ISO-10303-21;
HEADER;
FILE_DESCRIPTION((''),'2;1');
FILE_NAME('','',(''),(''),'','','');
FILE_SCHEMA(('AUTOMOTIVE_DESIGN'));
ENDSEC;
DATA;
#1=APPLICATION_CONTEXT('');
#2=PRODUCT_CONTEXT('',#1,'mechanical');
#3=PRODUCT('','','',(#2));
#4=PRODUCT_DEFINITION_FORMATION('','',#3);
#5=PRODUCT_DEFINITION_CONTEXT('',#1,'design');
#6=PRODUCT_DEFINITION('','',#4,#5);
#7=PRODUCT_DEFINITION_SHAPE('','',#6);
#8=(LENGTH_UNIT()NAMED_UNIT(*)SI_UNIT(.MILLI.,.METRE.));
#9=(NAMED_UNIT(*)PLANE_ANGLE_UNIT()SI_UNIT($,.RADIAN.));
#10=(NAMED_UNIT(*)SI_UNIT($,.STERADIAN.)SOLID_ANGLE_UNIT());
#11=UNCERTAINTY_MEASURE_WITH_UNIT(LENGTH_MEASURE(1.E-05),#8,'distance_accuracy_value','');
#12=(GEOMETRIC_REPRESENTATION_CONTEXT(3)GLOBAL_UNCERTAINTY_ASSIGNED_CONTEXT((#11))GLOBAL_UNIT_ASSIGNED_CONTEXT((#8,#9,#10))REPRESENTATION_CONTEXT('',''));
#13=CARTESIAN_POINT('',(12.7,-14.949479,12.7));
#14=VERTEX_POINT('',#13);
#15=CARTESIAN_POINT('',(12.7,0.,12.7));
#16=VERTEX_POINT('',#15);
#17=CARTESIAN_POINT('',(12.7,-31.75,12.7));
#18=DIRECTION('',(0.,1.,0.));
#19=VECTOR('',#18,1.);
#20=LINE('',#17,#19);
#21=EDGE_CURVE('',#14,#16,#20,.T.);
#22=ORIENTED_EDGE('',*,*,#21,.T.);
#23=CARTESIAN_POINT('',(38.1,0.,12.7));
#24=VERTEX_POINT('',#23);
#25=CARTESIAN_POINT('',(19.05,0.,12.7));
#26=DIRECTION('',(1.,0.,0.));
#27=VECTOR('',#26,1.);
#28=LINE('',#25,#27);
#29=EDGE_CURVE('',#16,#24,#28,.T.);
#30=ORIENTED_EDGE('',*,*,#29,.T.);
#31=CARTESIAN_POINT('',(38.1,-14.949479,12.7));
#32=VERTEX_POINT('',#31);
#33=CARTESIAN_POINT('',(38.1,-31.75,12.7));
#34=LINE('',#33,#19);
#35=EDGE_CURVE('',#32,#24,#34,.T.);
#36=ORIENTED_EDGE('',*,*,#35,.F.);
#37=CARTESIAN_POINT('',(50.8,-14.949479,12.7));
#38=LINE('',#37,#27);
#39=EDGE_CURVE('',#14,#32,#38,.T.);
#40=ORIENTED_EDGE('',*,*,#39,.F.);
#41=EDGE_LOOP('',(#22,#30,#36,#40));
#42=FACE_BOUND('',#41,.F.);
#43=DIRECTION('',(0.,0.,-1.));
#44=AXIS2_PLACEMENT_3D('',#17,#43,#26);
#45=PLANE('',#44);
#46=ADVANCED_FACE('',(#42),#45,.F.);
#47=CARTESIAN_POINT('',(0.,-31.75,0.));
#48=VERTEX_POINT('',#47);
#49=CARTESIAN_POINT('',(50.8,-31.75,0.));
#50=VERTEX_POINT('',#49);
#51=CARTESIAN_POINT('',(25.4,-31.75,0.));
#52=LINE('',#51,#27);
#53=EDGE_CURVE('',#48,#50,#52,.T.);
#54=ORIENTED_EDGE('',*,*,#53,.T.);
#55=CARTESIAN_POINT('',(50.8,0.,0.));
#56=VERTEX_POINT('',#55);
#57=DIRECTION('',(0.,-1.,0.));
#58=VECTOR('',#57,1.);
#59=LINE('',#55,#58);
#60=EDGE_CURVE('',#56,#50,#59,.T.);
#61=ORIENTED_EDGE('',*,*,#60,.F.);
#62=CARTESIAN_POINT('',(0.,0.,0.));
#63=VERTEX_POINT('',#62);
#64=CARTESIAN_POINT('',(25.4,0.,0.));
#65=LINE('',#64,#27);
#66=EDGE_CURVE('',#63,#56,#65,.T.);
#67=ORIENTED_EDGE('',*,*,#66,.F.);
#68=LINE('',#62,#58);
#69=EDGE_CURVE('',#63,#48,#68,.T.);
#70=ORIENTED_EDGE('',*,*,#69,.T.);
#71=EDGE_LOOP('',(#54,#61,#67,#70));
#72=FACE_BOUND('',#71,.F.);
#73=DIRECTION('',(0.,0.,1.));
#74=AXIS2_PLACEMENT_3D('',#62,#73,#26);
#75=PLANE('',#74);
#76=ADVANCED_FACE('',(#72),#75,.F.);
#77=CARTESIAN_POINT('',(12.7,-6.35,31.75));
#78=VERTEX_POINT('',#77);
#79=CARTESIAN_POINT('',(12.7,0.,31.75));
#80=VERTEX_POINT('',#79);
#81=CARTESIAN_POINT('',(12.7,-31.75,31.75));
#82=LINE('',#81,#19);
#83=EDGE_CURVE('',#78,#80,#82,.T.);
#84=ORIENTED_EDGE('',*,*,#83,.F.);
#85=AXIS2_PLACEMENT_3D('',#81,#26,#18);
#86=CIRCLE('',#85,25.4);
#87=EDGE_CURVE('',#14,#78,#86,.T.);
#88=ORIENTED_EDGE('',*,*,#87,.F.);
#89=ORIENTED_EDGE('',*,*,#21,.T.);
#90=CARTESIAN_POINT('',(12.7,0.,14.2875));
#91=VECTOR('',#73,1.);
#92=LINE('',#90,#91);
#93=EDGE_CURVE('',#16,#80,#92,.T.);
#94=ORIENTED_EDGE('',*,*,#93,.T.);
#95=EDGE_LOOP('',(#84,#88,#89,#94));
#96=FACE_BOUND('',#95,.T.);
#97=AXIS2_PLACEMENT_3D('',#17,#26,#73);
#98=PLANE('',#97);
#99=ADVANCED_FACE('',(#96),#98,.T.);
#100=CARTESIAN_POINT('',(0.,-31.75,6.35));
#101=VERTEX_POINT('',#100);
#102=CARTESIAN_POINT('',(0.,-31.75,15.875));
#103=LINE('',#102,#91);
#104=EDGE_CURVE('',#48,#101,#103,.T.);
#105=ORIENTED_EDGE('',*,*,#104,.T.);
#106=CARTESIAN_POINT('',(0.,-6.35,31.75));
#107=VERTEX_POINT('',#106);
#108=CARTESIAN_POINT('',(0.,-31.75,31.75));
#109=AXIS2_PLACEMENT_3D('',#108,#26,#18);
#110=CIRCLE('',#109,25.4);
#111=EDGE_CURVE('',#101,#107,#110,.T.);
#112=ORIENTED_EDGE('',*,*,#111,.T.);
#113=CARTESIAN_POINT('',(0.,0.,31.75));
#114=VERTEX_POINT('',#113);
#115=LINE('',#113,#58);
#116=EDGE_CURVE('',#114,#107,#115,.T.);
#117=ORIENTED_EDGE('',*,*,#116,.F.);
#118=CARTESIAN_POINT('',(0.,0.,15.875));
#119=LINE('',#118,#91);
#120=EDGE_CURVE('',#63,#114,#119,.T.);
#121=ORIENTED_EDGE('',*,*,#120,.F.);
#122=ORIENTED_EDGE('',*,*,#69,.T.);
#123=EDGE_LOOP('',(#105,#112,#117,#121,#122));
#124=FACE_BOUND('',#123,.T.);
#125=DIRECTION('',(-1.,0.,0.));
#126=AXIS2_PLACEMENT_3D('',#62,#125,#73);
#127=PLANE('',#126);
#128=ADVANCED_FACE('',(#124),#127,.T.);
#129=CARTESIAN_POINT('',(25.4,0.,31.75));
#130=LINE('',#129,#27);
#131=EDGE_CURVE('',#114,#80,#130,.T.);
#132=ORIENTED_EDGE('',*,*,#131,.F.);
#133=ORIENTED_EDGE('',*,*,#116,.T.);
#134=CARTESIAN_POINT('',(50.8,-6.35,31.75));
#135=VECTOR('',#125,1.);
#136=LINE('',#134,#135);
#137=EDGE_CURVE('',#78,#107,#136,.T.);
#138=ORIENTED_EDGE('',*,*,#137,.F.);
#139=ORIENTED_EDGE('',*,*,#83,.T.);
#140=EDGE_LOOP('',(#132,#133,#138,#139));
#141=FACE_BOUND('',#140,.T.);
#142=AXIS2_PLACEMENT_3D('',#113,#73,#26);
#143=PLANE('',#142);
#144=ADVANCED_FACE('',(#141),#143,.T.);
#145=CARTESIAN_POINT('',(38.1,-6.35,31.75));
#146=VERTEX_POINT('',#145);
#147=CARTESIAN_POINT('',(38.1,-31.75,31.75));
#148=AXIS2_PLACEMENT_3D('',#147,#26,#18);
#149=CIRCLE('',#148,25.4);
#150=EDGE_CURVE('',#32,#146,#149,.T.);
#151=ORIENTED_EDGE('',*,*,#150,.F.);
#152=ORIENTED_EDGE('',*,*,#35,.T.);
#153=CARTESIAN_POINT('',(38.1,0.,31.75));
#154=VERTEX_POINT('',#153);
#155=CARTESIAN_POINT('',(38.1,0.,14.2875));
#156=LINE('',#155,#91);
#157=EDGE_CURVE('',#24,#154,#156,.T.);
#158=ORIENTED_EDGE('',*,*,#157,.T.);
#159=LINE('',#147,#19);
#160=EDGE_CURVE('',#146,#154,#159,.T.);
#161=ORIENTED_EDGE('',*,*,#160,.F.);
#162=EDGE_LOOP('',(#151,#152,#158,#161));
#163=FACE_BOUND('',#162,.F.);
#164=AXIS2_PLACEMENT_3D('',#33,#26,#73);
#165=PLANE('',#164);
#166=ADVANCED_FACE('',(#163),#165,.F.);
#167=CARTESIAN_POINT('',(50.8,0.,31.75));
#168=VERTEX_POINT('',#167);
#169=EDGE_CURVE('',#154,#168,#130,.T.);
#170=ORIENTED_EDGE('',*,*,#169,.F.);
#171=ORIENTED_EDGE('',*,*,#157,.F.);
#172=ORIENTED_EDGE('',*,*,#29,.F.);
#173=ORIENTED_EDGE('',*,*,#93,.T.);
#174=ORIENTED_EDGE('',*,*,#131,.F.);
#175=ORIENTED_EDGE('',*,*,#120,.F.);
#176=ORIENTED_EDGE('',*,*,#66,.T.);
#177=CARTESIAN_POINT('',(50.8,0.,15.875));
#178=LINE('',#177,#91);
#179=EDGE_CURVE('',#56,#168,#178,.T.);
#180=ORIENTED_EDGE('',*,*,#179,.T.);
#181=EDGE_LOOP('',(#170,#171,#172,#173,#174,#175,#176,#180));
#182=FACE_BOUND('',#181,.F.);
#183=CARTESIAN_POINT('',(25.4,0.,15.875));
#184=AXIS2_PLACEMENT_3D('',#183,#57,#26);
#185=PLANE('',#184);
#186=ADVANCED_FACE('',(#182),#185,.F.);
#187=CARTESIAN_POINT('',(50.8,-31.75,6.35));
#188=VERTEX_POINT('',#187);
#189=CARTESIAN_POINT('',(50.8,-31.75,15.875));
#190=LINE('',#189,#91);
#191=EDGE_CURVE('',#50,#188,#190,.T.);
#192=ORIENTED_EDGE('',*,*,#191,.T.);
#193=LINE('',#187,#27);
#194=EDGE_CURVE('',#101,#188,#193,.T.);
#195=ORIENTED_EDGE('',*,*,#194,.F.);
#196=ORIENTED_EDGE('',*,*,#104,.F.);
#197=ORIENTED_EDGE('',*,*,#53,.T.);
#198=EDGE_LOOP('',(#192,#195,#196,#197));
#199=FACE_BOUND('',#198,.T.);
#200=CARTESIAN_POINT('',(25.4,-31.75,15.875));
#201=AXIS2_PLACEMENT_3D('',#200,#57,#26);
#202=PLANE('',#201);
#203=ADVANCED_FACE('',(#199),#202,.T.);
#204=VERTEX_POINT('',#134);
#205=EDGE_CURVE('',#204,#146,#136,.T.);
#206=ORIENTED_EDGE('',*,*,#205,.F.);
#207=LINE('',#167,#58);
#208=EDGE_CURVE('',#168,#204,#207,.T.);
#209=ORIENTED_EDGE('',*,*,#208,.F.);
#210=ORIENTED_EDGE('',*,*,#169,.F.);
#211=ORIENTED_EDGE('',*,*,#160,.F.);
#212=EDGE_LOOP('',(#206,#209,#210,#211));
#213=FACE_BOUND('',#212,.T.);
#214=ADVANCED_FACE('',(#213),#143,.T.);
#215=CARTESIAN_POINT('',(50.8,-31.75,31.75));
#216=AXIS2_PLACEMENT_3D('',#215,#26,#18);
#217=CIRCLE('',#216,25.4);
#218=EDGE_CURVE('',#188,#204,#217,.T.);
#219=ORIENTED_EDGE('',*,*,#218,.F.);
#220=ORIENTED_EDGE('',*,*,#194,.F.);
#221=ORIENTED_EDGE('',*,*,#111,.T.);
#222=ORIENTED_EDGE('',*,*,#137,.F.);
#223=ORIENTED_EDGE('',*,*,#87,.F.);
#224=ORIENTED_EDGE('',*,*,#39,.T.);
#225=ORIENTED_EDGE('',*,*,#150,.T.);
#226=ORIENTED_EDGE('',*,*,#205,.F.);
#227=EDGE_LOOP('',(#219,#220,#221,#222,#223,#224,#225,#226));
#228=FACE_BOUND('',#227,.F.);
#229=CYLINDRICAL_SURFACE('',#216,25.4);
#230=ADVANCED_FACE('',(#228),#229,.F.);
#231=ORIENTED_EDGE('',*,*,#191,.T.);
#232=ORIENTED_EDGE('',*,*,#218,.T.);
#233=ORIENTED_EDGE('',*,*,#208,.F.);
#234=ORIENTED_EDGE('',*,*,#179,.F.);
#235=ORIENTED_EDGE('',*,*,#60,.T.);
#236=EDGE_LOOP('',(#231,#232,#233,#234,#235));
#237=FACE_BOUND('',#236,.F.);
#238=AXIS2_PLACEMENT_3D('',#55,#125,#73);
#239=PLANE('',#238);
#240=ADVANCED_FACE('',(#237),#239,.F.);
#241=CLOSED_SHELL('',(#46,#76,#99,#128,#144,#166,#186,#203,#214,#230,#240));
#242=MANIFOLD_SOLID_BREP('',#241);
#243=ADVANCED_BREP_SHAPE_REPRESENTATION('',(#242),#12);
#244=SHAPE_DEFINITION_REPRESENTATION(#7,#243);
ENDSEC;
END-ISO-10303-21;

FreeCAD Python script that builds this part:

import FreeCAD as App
import Part
import Sketcher
from FreeCAD import Vector
Q = App.Units.Quantity


def add_polygon(sketch, points):
    """Adds a closed chain of lines whose ends are joined by coincident constraints."""
    first, n = sketch.GeometryCount, len(points)
    for a, b in zip(points, points[1:] + points[:1]):
        sketch.addGeometry(Part.LineSegment(App.Vector(*a, 0), App.Vector(*b, 0)), False)
    for i in range(n):
        sketch.addConstraint(Sketcher.Constraint("Coincident", first + i, 2, first + (i + 1) % n, 1))

doc = App.newDocument("Part")
body = doc.addObject("PartDesign::Body", "Body")

sketch1 = doc.addObject("Sketcher::SketchObject", "Sketch")
body.addObject(sketch1)
sketch1.AttachmentSupport = (doc.XZ_Plane, [""])
sketch1.MapMode = "FlatFace"
add_polygon(sketch1, [(0, 31.75), (0, 0), (50.8, 0), (50.8, 31.75)])
sketch1.addConstraint([
    Sketcher.Constraint("Vertical", 0),
    Sketcher.Constraint("Horizontal", 1),
    Sketcher.Constraint("Vertical", 2),
    Sketcher.Constraint("Horizontal", 3),
    Sketcher.Constraint("Coincident", 0, 2, -1, 1),
    Sketcher.Constraint("DistanceX", 1, 1, 1, 2, Q("2 in")),
    Sketcher.Constraint("DistanceY", 0, 2, 0, 1, Q("1.25 in")),
])
pad1 = doc.addObject("PartDesign::Pad", "Pad")
body.addObject(pad1)
pad1.Profile = sketch1
pad1.Length = Q("1.25 in")

sketch2 = doc.addObject("Sketcher::SketchObject", "Sketch001")
body.addObject(sketch2)
sketch2.AttachmentSupport = (doc.XZ_Plane, [""])
sketch2.MapMode = "FlatFace"
sketch2.AttachmentOffset = App.Placement(Vector(0, 0, 1.25 * 25.4), App.Rotation())
add_polygon(sketch2, [(12.7, 31.75), (12.7, 12.7), (38.1, 12.7), (38.1, 31.75)])
sketch2.addConstraint([
    Sketcher.Constraint("Vertical", 0),
    Sketcher.Constraint("Horizontal", 1),
    Sketcher.Constraint("Vertical", 2),
    Sketcher.Constraint("Horizontal", 3),
    Sketcher.Constraint("DistanceX", 1, 1, 1, 2, Q("1 in")),
    Sketcher.Constraint("DistanceY", 0, 2, 0, 1, Q("0.75 in")),
    Sketcher.Constraint("DistanceX", -1, 1, 0, 2, Q("0.5 in")),
    Sketcher.Constraint("DistanceY", -1, 1, 0, 2, Q("0.5 in")),
])
pocket1 = doc.addObject("PartDesign::Pocket", "Pocket")
body.addObject(pocket1)
pocket1.Profile = sketch2
pocket1.Type = "ThroughAll"

sketch3 = doc.addObject("Sketcher::SketchObject", "Sketch002")
body.addObject(sketch3)
sketch3.AttachmentSupport = (doc.YZ_Plane, [""])
sketch3.MapMode = "FlatFace"
sketch3.AttachmentOffset = App.Placement(Vector(0, 0, 2 * 25.4), App.Rotation())
sketch3.addGeometry(Part.Circle(Vector(-31.75, 31.75, 0), Vector(0, 0, 1), 25.4), False)
sketch3.addConstraint([
    Sketcher.Constraint("Diameter", 0, Q("2 in")),
    Sketcher.Constraint("DistanceX", 0, 3, -1, 1, Q("1.25 in")),
    Sketcher.Constraint("DistanceY", -1, 1, 0, 3, Q("1.25 in")),
])
pocket2 = doc.addObject("PartDesign::Pocket", "Pocket001")
body.addObject(pocket2)
pocket2.Profile = sketch3
pocket2.Type = "ThroughAll"

doc.recompute()
